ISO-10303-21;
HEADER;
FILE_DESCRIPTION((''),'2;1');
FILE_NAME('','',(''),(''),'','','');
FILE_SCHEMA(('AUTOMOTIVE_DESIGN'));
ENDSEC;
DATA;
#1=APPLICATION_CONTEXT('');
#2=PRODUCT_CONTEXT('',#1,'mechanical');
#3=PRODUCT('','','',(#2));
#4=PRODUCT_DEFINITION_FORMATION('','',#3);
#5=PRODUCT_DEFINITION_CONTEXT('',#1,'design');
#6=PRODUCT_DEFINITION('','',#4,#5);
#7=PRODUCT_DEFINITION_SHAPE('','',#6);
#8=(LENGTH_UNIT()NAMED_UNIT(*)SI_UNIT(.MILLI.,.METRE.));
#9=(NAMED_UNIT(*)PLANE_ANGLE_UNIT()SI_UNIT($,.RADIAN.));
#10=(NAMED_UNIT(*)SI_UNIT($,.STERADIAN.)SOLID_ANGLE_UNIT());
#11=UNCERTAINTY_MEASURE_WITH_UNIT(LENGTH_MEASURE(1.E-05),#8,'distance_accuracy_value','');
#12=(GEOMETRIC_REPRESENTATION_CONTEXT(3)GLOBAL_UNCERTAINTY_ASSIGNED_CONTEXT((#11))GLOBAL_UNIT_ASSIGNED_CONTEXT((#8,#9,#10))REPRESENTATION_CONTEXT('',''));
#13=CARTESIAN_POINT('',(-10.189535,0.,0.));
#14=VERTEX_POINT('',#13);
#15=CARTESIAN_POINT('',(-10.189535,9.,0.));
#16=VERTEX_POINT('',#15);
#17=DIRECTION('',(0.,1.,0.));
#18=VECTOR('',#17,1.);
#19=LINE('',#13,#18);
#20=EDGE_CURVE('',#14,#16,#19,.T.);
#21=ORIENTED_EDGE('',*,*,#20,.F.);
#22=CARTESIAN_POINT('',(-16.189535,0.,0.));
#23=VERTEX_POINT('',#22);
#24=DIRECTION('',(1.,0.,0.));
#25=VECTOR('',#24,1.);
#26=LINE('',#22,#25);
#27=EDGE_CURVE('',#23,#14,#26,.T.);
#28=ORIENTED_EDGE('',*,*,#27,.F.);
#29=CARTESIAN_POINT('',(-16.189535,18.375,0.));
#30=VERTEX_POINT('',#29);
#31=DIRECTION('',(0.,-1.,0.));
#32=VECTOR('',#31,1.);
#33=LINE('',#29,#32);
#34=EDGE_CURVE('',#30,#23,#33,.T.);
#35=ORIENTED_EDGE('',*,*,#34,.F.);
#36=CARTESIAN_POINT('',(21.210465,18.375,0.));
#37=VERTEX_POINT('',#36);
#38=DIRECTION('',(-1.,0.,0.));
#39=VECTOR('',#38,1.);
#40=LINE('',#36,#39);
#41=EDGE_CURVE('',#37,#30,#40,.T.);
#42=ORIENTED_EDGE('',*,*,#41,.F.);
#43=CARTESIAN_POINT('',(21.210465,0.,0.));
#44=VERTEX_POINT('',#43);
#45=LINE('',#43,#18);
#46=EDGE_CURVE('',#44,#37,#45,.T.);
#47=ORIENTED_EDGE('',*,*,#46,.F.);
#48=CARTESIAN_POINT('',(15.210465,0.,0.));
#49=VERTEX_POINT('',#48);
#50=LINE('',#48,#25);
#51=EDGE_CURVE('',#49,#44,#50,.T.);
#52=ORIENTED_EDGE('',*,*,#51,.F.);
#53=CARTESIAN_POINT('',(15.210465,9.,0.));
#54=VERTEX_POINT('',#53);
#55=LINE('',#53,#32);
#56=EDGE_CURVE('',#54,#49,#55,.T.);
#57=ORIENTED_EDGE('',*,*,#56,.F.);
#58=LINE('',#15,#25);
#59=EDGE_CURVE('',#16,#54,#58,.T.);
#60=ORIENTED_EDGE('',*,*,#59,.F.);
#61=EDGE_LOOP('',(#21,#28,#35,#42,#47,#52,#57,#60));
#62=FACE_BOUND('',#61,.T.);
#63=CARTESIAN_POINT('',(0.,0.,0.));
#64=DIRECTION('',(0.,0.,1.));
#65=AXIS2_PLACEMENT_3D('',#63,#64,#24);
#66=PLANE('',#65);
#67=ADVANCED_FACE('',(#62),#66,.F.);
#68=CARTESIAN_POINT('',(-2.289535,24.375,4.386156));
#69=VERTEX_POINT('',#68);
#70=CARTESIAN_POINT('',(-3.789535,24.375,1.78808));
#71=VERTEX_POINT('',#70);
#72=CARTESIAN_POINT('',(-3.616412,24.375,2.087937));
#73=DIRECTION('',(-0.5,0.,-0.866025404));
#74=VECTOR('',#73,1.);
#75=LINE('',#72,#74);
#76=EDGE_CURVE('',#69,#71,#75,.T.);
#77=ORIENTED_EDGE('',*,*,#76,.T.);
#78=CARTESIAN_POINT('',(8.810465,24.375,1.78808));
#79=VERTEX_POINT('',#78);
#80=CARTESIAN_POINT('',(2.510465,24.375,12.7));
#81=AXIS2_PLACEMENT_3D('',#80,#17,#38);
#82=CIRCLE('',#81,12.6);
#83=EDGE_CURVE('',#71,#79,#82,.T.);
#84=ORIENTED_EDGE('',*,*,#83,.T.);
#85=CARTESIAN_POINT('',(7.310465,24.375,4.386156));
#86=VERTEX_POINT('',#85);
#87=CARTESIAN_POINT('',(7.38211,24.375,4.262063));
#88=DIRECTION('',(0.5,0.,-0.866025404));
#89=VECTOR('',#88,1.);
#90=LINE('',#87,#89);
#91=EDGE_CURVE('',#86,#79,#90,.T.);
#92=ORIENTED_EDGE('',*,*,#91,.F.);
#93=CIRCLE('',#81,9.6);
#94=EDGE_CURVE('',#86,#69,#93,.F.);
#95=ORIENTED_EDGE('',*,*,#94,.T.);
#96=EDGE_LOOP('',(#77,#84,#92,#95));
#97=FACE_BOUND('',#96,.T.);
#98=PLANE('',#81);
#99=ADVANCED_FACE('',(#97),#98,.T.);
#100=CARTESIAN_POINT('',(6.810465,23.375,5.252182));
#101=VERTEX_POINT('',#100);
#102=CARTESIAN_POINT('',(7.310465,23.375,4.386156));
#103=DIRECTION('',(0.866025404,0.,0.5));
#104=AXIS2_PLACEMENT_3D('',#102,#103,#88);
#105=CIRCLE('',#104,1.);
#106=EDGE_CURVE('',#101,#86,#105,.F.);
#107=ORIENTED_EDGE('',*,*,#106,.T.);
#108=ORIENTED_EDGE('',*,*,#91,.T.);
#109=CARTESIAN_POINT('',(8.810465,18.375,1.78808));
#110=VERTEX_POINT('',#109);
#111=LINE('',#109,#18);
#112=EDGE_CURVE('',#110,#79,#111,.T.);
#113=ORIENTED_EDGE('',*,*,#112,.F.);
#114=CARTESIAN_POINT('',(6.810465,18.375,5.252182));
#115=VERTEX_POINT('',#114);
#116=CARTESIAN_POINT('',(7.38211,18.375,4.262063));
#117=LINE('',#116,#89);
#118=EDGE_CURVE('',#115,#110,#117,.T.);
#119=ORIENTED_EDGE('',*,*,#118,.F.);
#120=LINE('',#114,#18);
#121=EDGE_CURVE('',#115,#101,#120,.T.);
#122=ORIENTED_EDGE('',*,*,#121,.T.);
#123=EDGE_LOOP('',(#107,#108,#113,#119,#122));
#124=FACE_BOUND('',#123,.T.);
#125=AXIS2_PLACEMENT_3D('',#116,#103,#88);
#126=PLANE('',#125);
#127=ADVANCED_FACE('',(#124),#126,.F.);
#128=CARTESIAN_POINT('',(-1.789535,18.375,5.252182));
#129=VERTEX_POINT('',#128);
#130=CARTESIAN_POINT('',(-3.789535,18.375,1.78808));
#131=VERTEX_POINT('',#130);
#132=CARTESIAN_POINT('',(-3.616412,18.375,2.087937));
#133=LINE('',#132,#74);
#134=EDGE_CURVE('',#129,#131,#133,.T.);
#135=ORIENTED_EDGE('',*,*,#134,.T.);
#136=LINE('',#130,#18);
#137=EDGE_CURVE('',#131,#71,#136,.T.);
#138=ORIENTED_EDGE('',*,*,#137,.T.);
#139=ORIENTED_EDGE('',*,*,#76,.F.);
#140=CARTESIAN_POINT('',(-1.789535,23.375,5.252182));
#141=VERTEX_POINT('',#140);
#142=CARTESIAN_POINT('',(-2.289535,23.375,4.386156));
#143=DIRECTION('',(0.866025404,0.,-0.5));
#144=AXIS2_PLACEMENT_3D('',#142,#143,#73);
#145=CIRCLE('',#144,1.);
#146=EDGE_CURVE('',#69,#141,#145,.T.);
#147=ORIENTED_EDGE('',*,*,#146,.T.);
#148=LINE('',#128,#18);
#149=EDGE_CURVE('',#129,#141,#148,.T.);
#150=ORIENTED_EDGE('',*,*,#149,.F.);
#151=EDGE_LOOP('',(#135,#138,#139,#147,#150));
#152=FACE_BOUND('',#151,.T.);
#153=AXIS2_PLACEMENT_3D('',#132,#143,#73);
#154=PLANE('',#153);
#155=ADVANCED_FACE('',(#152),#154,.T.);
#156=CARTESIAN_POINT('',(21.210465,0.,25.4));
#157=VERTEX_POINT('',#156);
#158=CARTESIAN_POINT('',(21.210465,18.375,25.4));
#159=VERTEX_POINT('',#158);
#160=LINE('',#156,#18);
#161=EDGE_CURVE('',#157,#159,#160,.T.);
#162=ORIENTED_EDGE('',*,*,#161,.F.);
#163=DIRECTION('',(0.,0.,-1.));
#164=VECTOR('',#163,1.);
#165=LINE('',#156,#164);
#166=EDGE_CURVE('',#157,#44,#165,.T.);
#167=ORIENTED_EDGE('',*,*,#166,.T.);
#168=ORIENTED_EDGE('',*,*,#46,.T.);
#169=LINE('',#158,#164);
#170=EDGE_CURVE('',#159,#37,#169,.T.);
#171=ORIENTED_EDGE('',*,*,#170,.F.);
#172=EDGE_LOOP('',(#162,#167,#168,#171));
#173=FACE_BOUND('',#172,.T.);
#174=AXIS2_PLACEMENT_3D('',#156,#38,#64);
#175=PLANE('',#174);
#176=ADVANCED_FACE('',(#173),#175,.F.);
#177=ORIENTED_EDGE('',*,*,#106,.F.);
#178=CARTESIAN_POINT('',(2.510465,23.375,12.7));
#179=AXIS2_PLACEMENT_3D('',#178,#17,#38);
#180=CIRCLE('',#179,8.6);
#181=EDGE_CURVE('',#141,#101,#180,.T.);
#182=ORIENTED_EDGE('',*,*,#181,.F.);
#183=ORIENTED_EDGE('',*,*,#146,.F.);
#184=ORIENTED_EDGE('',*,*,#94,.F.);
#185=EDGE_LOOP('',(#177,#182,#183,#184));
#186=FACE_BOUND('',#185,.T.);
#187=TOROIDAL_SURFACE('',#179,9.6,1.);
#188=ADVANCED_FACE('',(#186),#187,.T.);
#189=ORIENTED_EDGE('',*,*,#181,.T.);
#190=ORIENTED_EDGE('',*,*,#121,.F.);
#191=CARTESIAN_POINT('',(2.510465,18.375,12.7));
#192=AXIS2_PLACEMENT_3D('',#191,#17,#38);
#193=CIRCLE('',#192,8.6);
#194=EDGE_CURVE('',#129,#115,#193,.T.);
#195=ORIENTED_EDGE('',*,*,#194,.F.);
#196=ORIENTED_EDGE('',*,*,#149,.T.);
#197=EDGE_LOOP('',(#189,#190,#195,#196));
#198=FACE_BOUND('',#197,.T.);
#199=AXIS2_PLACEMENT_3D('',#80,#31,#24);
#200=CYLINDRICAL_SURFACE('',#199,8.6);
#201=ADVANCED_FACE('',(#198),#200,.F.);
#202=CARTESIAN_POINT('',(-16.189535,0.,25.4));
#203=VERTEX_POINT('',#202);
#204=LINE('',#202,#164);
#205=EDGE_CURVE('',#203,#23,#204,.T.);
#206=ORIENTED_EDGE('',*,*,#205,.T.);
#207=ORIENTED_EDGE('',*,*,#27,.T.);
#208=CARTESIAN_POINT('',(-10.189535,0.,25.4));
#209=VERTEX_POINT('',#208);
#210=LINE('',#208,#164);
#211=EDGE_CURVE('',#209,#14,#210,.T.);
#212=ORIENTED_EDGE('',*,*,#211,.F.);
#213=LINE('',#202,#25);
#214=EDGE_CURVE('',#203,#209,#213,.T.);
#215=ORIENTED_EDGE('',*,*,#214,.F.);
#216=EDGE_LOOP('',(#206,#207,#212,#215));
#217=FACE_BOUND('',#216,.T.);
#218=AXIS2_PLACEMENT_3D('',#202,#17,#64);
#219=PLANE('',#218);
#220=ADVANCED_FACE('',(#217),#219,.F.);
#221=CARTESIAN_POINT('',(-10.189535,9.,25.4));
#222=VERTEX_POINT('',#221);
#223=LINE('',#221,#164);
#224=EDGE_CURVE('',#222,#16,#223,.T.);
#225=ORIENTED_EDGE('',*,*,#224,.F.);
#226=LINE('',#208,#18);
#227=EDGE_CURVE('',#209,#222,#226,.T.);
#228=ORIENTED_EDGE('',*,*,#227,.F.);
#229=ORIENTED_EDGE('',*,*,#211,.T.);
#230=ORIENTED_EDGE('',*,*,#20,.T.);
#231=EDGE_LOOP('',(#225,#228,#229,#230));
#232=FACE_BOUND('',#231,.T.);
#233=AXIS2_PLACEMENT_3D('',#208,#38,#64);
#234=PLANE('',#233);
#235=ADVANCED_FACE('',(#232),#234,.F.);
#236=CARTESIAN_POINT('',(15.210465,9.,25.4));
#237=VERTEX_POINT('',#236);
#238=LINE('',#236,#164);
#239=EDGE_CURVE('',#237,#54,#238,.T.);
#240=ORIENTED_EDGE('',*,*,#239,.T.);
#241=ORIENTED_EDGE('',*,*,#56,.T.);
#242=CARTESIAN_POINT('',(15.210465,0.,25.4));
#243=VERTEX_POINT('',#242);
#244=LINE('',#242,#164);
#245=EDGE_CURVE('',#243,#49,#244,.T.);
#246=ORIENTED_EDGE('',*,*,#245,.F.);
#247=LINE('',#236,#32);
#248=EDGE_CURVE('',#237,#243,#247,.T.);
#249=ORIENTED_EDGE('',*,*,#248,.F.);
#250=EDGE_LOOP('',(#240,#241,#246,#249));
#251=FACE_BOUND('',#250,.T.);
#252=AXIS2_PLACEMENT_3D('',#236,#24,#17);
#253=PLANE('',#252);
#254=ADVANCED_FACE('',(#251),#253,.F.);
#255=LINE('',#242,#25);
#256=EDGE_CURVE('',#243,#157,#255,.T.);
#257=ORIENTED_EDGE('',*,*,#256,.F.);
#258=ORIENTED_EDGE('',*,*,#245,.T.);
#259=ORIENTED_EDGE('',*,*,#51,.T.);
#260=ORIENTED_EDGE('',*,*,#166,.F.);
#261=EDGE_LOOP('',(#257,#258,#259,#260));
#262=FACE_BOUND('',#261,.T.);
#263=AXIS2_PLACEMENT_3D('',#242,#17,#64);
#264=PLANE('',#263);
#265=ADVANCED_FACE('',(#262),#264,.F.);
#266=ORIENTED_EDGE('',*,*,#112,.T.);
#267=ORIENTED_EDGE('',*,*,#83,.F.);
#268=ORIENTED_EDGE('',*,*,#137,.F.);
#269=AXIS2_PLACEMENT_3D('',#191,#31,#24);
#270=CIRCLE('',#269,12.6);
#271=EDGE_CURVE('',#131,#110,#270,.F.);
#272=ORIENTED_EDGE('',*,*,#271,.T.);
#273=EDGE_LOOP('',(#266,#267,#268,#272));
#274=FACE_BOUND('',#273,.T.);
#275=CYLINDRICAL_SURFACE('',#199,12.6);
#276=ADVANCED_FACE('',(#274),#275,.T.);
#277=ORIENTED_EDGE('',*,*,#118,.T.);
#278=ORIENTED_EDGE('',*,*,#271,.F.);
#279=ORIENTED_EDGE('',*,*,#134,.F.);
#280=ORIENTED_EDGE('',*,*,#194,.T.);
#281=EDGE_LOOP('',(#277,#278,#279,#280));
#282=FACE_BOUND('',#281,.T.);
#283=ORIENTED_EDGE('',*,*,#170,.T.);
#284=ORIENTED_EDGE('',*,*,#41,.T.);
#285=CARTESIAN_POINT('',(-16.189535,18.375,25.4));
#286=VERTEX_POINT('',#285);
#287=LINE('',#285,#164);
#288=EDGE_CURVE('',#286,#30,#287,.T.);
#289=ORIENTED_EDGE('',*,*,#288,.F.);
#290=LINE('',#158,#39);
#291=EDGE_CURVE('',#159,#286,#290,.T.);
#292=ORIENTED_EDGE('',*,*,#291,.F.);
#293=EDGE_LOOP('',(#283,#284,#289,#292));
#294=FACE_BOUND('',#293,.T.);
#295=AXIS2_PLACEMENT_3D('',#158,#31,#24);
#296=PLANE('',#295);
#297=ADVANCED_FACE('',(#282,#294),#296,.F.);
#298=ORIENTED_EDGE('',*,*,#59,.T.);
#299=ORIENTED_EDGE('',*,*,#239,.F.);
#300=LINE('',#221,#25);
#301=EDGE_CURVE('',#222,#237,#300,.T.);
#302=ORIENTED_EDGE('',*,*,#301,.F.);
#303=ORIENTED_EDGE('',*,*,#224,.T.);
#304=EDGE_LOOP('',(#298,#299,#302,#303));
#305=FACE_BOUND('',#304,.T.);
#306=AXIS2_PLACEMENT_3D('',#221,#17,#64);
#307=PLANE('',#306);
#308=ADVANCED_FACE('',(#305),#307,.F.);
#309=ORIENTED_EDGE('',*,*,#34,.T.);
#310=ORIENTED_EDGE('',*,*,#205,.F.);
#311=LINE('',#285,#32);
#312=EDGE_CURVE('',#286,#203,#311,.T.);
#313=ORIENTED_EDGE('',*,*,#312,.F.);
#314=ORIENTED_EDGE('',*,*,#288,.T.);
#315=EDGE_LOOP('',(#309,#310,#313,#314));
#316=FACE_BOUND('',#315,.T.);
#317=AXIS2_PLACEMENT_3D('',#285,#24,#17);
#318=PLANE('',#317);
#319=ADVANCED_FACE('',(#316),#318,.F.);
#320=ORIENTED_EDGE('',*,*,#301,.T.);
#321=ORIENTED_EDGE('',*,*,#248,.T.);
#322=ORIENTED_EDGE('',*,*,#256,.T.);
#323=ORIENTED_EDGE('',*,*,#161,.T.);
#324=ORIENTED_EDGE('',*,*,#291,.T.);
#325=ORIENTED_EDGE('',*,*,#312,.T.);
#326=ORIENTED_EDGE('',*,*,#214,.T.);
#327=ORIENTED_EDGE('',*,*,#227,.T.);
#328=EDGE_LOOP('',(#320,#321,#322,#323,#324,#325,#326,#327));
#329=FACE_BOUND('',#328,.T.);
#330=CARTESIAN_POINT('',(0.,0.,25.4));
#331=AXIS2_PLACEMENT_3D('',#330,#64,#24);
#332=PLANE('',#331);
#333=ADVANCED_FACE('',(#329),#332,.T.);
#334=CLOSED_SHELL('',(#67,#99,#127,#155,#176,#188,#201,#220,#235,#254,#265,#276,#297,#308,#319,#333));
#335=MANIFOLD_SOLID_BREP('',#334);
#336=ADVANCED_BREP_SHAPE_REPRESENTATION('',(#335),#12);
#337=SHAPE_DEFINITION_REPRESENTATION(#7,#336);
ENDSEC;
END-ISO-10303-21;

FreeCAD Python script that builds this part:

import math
import FreeCAD as App
import Part
import Sketcher
Q = App.Units.Quantity


def edges_at(feature, points):
    """Names of the edges that pass closest to the given points."""
    edges = feature.Shape.Edges
    near = lambda p: min(range(len(edges)), key=lambda i: edges[i].distToShape(Part.Vertex(*p))[0])
    return sorted({f"Edge{near(p) + 1}" for p in points})

doc = App.newDocument("Part")
body = doc.addObject("PartDesign::Body", "Body")

sketch1 = body.newObject("Sketcher::SketchObject", "Sketch")
sketch1.AttachmentSupport = (doc.getObject("XY_Plane"), [""])
sketch1.MapMode = "FlatFace"
sketch1.addGeometry([
    Part.LineSegment(App.Vector(-10.189535, 0, 0), App.Vector(-10.189535, 9, 0)),
    Part.LineSegment(App.Vector(-10.189535, 9, 0), App.Vector(15.210465, 9, 0)),
    Part.LineSegment(App.Vector(15.210465, 9, 0), App.Vector(15.210465, 0, 0)),
    Part.LineSegment(App.Vector(15.210465, 0, 0), App.Vector(21.210465, 0, 0)),
    Part.LineSegment(App.Vector(21.210465, 0, 0), App.Vector(21.210465, 18.375, 0)),
    Part.LineSegment(App.Vector(21.210465, 18.375, 0), App.Vector(-16.189535, 18.375, 0)),
    Part.LineSegment(App.Vector(-16.189535, 18.375, 0), App.Vector(-16.189535, 0, 0)),
    Part.LineSegment(App.Vector(-16.189535, 0, 0), App.Vector(-10.189535, 0, 0)),
], False)
sketch1.addConstraint([
    Sketcher.Constraint("Coincident", 0, 2, 1, 1),
    Sketcher.Constraint("Coincident", 1, 2, 2, 1),
    Sketcher.Constraint("Coincident", 2, 2, 3, 1),
    Sketcher.Constraint("Coincident", 3, 2, 4, 1),
    Sketcher.Constraint("Coincident", 4, 2, 5, 1),
    Sketcher.Constraint("Coincident", 5, 2, 6, 1),
    Sketcher.Constraint("Coincident", 6, 2, 7, 1),
    Sketcher.Constraint("Coincident", 7, 2, 0, 1),
    Sketcher.Constraint("Vertical", 0),
    Sketcher.Constraint("Horizontal", 1),
    Sketcher.Constraint("Vertical", 2),
    Sketcher.Constraint("Horizontal", 3),
    Sketcher.Constraint("Vertical", 4),
    Sketcher.Constraint("Horizontal", 5),
    Sketcher.Constraint("Vertical", 6),
    Sketcher.Constraint("Horizontal", 7),
    Sketcher.Constraint("PointOnObject", 2, 2, -1),
    Sketcher.Constraint("PointOnObject", 6, 2, -1),
    Sketcher.Constraint("Equal", 3, 7),
    Sketcher.Constraint("DistanceX", 3, 1, 3, 2, 6.0),
    Sketcher.Constraint("DistanceY", 0, 1, 0, 2, 9.0),
    Sketcher.Constraint("DistanceX", 1, 1, 1, 2, 25.4),
    Sketcher.Constraint("DistanceY", 4, 1, 4, 2, 18.375),
    Sketcher.Constraint("DistanceX", 0, 2, -1, 1, 10.189535),
])
pad1 = body.newObject("PartDesign::Pad", "Pad")
pad1.Profile = sketch1
pad1.Length = 25.4

sketch2 = body.newObject("Sketcher::SketchObject", "Sketch001")
sketch2.AttachmentSupport = (doc.getObject("XZ_Plane"), [""])
sketch2.MapMode = "FlatFace"
sketch2.AttachmentOffset = App.Placement(App.Vector(0, 0, -18.375), App.Rotation())
sketch2.addGeometry([
    Part.Circle(App.Vector(2.510465, 12.7, 0), App.Vector(0, 0, 1), 12.6),
    Part.Circle(App.Vector(2.510465, 12.7, 0), App.Vector(0, 0, 1), 8.6),
], False)
sketch2.addConstraint([
    Sketcher.Constraint("Coincident", 1, 3, 0, 3),
    Sketcher.Constraint("Diameter", 0, 25.2),
    Sketcher.Constraint("Diameter", 1, 17.2),
    Sketcher.Constraint("DistanceY", -1, 1, 0, 3, 12.7),
    Sketcher.Constraint("DistanceX", -1, 1, 0, 3, 2.510465),
])
pad2 = body.newObject("PartDesign::Pad", "Pad001")
pad2.Profile = sketch2
pad2.Length = 6
pad2.Reversed = True

sketch3 = body.newObject("Sketcher::SketchObject", "Sketch002")
sketch3.AttachmentSupport = (doc.getObject("XZ_Plane"), [""])
sketch3.MapMode = "FlatFace"
sketch3.AttachmentOffset = App.Placement(App.Vector(0, 0, -24.375), App.Rotation())
sketch3.addGeometry([
    Part.ArcOfCircle(Part.Circle(App.Vector(2.510465, 12.7, 0), App.Vector(0, 0, 1), 8.6), math.radians(-120), math.radians(-90)),
    Part.ArcOfCircle(Part.Circle(App.Vector(2.510465, 12.7, 0), App.Vector(0, 0, 1), 8.6), math.radians(-90), math.radians(-60)),
    Part.LineSegment(App.Vector(6.810465, 5.252182, 0), App.Vector(8.810465, 1.78808, 0)),
    Part.ArcOfCircle(Part.Circle(App.Vector(2.510465, 12.7, 0), App.Vector(0, 0, 1), 12.6), math.radians(-90), math.radians(-60)),
    Part.ArcOfCircle(Part.Circle(App.Vector(2.510465, 12.7, 0), App.Vector(0, 0, 1), 12.6), math.radians(-120), math.radians(-90)),
    Part.LineSegment(App.Vector(-3.789535, 1.78808, 0), App.Vector(-1.789535, 5.252182, 0)),
], False)
sketch3.addConstraint([
    Sketcher.Constraint("Tangent", 0, 2, 1, 1),
    Sketcher.Constraint("Coincident", 1, 2, 2, 1),
    Sketcher.Constraint("Coincident", 2, 2, 3, 2),
    Sketcher.Constraint("Tangent", 3, 1, 4, 2),
    Sketcher.Constraint("Coincident", 4, 1, 5, 1),
    Sketcher.Constraint("Coincident", 5, 2, 0, 1),
    Sketcher.Constraint("Coincident", 3, 3, 0, 3),
    Sketcher.Constraint("Equal", 0, 1),
    Sketcher.Constraint("Equal", 3, 4),
    Sketcher.Constraint("Horizontal", 2, 2, 4, 1),
    Sketcher.Constraint("Horizontal", 1, 2, 5, 2),
    Sketcher.Constraint("Vertical", 4, 3, 0, 2),
    Sketcher.Constraint("Vertical", 0, 2, 3, 1),
    Sketcher.Constraint("Radius", 0, 8.6),
    Sketcher.Constraint("Radius", 3, 12.6),
    Sketcher.Constraint("Angle", 2, Q("-60 deg")),
    Sketcher.Constraint("DistanceY", -1, 1, 0, 3, 12.7),
    Sketcher.Constraint("DistanceX", 0, 2, 1, 2, 4.3),
    Sketcher.Constraint("DistanceX", -1, 1, 0, 3, 2.510465),
])
pocket1 = body.newObject("PartDesign::Pocket", "Pocket")
pocket1.Profile = sketch3
pocket1.Length = 6
pocket1.Reversed = True
doc.recompute()

fillet = body.newObject("PartDesign::Fillet", "Fillet")
fillet.Base = (pocket1, edges_at(pocket1, [(2.51, 24.375, 21.3)]))
fillet.Radius = 1

doc.recompute()
